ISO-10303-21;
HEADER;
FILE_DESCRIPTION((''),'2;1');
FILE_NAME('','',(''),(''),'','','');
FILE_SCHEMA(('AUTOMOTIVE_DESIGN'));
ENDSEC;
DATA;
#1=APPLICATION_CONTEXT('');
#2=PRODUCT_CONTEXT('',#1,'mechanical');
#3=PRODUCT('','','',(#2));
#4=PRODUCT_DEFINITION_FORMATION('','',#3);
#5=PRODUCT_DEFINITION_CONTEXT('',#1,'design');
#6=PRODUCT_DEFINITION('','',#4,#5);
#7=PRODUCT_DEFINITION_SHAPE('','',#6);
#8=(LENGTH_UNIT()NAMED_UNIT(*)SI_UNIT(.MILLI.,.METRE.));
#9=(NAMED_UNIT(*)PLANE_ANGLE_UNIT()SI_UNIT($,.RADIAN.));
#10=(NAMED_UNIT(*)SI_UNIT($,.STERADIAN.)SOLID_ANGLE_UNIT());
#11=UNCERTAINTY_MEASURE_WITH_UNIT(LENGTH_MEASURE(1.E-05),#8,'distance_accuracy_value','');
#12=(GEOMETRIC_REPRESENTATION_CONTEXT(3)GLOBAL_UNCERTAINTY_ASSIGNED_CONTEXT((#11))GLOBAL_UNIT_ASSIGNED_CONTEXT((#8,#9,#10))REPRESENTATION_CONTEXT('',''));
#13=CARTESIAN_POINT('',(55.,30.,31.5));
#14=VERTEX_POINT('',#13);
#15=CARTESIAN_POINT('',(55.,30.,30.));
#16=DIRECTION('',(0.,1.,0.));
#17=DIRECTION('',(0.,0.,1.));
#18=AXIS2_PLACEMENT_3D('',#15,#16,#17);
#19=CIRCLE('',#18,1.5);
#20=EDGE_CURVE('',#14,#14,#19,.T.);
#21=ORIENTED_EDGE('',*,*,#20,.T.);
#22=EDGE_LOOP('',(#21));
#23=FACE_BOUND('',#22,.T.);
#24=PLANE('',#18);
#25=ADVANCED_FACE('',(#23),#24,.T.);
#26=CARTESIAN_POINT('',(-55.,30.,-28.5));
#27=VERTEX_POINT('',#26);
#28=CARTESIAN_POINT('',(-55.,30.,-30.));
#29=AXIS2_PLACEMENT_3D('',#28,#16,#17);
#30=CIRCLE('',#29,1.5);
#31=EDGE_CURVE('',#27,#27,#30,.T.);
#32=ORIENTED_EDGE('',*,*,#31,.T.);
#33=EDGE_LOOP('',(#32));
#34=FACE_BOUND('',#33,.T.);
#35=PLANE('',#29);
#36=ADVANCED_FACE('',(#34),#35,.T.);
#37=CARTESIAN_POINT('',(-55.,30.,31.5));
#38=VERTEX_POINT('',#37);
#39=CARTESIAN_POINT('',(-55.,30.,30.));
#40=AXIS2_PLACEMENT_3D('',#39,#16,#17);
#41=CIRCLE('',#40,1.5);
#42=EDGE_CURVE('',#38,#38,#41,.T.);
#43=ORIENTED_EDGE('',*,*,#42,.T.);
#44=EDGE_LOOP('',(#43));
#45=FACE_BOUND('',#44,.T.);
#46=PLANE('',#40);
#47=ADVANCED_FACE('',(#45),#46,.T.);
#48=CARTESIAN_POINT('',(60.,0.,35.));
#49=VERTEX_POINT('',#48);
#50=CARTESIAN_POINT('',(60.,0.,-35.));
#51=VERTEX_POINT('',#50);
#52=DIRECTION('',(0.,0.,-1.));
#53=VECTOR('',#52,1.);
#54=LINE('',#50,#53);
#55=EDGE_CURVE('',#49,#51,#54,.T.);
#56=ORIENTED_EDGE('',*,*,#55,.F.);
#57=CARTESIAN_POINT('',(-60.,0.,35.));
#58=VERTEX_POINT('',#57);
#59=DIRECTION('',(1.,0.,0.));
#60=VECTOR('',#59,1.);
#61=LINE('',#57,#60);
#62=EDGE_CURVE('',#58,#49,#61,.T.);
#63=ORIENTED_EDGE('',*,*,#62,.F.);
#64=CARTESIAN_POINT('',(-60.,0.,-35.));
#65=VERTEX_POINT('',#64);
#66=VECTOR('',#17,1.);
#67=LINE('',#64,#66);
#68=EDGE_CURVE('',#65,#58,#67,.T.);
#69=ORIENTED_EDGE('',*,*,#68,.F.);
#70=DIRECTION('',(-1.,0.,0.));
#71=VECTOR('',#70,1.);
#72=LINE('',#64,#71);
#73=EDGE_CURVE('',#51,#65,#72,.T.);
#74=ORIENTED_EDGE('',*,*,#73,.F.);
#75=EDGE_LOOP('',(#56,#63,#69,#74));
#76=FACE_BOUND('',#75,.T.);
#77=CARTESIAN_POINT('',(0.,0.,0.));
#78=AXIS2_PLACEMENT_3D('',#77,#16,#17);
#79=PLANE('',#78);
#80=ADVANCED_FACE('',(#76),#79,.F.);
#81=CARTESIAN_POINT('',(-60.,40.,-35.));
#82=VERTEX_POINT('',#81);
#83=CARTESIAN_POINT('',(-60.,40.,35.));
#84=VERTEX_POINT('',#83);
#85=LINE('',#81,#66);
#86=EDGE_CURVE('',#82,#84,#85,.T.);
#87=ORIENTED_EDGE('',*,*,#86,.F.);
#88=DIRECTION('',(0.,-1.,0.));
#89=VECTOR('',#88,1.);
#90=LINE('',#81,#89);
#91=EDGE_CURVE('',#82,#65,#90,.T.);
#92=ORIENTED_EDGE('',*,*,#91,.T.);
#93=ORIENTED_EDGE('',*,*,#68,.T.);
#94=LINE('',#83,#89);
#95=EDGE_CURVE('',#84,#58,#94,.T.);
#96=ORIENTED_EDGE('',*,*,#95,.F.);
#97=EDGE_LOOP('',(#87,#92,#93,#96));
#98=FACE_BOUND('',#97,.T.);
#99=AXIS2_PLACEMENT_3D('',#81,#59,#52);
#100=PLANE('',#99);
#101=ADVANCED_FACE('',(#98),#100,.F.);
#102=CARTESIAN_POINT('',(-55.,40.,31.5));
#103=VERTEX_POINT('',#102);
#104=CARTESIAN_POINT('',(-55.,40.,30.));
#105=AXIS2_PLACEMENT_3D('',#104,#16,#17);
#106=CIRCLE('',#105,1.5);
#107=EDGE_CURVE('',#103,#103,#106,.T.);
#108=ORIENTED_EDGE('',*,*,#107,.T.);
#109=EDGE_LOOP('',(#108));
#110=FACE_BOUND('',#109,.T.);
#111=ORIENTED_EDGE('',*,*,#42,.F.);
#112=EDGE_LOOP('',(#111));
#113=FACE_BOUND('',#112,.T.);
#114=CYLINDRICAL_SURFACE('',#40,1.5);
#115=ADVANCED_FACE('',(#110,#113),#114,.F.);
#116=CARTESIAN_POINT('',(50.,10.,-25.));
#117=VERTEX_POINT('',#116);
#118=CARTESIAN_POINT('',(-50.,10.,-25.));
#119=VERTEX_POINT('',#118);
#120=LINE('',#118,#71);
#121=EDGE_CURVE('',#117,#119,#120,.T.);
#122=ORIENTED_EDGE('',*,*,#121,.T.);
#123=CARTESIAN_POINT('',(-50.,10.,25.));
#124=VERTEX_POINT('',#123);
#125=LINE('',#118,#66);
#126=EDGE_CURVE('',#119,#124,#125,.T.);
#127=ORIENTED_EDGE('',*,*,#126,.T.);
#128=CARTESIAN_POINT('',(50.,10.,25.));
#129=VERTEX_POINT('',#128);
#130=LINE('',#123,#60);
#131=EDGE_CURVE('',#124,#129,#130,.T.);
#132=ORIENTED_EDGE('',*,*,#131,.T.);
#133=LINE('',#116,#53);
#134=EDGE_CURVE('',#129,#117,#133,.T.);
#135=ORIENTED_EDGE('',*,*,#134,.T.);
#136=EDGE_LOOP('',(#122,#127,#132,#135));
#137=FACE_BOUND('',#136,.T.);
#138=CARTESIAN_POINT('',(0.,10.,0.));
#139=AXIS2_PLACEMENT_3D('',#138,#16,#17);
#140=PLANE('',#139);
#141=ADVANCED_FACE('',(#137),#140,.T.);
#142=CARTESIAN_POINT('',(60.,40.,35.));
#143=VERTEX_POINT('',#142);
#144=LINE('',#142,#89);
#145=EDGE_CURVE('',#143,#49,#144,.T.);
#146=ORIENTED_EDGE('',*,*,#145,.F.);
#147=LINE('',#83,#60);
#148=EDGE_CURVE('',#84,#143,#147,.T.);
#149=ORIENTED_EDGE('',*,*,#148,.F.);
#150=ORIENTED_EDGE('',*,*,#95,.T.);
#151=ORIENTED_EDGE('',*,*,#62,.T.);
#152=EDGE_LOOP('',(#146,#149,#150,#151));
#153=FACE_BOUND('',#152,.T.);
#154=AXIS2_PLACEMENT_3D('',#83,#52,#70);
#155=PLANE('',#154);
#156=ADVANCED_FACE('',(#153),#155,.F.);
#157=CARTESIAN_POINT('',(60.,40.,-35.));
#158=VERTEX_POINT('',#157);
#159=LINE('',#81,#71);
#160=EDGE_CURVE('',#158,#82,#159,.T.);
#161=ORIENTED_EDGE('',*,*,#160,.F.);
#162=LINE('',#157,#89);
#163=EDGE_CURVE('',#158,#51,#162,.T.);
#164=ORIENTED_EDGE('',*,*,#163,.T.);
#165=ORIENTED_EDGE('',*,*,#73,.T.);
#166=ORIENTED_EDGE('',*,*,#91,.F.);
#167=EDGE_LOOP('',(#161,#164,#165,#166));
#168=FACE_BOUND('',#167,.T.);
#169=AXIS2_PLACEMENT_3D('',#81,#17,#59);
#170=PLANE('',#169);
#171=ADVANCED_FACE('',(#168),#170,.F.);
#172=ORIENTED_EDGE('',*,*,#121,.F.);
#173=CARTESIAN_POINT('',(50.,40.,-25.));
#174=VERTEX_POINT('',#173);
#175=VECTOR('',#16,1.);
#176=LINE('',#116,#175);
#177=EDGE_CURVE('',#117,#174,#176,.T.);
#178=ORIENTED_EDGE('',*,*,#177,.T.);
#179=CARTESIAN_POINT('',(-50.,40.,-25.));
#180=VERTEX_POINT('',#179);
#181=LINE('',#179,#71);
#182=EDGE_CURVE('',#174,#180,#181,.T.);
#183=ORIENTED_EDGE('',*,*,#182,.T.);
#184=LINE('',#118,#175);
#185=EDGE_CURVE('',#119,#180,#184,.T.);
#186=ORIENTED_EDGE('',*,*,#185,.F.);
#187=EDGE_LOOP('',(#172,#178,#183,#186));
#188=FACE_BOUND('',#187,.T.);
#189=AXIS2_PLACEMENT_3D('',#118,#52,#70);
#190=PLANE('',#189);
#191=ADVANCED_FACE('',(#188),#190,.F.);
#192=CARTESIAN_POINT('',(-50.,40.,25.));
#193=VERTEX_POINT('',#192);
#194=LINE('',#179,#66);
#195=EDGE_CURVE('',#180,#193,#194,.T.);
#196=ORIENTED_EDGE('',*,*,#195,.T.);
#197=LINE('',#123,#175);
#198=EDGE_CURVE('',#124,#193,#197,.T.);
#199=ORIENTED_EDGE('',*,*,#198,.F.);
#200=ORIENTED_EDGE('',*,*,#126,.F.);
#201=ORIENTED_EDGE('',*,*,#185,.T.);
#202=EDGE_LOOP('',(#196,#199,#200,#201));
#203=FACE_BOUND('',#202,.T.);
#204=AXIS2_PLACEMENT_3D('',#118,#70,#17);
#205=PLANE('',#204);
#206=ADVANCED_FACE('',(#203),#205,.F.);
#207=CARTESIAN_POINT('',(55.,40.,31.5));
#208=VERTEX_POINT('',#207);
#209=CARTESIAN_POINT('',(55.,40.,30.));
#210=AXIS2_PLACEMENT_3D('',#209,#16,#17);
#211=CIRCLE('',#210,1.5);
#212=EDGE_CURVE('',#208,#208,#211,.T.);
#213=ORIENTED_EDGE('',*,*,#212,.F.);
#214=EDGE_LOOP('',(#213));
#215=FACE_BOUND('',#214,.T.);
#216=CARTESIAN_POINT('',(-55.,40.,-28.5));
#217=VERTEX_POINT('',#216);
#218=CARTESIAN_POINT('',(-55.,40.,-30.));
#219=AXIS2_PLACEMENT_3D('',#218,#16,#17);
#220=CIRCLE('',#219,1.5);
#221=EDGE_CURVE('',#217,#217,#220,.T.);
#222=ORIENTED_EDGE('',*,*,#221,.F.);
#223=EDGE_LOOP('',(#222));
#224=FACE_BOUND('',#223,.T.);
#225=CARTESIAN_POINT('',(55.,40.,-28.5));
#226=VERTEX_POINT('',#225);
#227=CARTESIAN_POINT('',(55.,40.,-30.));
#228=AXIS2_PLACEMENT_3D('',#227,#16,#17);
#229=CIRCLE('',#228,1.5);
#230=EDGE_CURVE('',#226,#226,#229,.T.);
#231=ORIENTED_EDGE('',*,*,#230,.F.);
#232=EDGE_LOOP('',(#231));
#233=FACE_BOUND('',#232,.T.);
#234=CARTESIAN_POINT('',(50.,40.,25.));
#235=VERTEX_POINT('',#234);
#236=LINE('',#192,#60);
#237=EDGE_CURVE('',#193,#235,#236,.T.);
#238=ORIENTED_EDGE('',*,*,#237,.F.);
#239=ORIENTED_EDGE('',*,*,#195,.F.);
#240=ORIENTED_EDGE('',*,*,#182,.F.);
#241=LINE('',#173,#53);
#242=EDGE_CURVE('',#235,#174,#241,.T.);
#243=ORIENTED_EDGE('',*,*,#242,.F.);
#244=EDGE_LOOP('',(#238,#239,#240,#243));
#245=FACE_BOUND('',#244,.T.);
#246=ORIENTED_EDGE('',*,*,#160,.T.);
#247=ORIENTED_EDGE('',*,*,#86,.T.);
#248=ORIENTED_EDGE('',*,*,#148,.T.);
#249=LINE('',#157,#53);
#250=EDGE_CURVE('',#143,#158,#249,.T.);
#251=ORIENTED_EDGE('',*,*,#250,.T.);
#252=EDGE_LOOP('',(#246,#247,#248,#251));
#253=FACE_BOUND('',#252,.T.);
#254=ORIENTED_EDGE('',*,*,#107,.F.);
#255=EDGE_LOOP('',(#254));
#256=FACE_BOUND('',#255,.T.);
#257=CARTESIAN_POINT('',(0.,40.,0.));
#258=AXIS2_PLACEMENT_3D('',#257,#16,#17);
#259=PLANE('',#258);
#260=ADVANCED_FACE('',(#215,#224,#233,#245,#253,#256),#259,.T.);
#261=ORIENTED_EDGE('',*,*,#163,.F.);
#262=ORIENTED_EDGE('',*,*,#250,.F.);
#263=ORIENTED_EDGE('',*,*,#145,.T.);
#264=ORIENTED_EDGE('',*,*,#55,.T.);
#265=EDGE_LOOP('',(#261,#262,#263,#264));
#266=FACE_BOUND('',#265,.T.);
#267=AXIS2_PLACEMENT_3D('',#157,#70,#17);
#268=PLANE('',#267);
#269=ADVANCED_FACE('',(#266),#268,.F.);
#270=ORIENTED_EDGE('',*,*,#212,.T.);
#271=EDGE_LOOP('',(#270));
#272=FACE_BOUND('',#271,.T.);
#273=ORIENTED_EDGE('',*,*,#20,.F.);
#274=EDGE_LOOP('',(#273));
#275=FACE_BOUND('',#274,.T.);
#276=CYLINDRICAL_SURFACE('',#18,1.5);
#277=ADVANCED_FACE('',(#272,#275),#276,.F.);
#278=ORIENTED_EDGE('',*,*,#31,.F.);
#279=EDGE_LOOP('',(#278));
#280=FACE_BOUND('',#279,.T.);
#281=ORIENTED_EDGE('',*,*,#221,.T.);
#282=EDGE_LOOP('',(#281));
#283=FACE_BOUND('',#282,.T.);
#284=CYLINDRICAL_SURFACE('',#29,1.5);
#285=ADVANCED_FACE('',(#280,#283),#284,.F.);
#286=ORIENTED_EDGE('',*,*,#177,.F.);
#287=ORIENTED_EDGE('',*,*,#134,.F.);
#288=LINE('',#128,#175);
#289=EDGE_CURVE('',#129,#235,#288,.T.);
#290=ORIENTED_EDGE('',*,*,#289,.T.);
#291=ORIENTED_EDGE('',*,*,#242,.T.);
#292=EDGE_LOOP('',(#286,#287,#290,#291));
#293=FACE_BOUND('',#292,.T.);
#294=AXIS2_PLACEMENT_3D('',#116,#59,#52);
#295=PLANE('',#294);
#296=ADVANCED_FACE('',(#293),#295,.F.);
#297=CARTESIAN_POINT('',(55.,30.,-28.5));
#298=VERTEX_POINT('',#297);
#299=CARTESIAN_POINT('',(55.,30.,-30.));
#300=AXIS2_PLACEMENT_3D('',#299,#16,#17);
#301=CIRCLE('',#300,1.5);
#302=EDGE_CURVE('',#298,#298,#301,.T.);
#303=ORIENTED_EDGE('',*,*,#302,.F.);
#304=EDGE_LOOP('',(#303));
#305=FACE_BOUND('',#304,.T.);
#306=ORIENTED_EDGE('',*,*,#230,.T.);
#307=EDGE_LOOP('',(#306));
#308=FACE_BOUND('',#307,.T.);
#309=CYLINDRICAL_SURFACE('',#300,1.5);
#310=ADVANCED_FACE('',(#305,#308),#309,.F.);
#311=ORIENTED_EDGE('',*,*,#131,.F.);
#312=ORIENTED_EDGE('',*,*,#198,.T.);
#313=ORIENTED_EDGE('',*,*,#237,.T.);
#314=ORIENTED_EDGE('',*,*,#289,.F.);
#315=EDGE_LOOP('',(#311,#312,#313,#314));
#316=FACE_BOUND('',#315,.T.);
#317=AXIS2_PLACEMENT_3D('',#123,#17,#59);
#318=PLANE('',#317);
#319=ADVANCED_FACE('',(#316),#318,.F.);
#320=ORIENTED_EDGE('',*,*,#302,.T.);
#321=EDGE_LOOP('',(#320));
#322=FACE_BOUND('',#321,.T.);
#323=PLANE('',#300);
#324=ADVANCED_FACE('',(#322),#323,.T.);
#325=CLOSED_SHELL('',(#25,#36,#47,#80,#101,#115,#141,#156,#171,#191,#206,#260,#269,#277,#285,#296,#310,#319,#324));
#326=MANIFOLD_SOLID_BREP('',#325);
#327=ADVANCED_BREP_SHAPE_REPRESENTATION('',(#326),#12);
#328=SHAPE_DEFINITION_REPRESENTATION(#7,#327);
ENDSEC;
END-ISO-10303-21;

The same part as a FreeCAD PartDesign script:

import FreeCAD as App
import Part
import Sketcher
from FreeCAD import Vector
Q = App.Units.Quantity

doc = App.newDocument("Part")
body = doc.addObject("PartDesign::Body", "Body")

# Sketch on XZ plane
sketch1 = body.newObject("Sketcher::SketchObject", "Sketch")
sketch1.AttachmentSupport = (doc.getObject("XZ_Plane"), [""])
sketch1.MapMode = "FlatFace"
sketch1.addGeometry([
    Part.LineSegment(Vector(-60, -35, 0), Vector(-60, 35, 0)),
    Part.LineSegment(Vector(-60, 35, 0), Vector(60, 35, 0)),
    Part.LineSegment(Vector(60, 35, 0), Vector(60, -35, 0)),
    Part.LineSegment(Vector(60, -35, 0), Vector(-60, -35, 0)),
], False)
sketch1.addConstraint([
    Sketcher.Constraint("Coincident", 0, 2, 1, 1),
    Sketcher.Constraint("Coincident", 1, 2, 2, 1),
    Sketcher.Constraint("Coincident", 2, 2, 3, 1),
    Sketcher.Constraint("Coincident", 3, 2, 0, 1),
    Sketcher.Constraint("Vertical", 0),
    Sketcher.Constraint("Horizontal", 1),
    Sketcher.Constraint("Vertical", 2),
    Sketcher.Constraint("Horizontal", 3),
    Sketcher.Constraint("Symmetric", 0, 2, 2, 2, -1, 1),
    Sketcher.Constraint("DistanceX", 1, 1, 1, 2, Q("120 mm")),
    Sketcher.Constraint("DistanceY", 0, 1, 0, 2, Q("70 mm")),
])
pad1 = body.newObject("PartDesign::Pad", "Pad")
pad1.Profile = sketch1
pad1.Length = 40
pad1.Reversed = True

# Sketch on XZ plane
sketch2 = body.newObject("Sketcher::SketchObject", "Sketch001")
sketch2.AttachmentSupport = (doc.getObject("XZ_Plane"), [""])
sketch2.MapMode = "FlatFace"
sketch2.AttachmentOffset = App.Placement(Vector(0, 0, -40), App.Rotation())
sketch2.addGeometry([
    Part.LineSegment(Vector(-50, -25, 0), Vector(-50, 25, 0)),
    Part.LineSegment(Vector(-50, 25, 0), Vector(50, 25, 0)),
    Part.LineSegment(Vector(50, 25, 0), Vector(50, -25, 0)),
    Part.LineSegment(Vector(50, -25, 0), Vector(-50, -25, 0)),
], False)
sketch2.addConstraint([
    Sketcher.Constraint("Coincident", 0, 2, 1, 1),
    Sketcher.Constraint("Coincident", 1, 2, 2, 1),
    Sketcher.Constraint("Coincident", 2, 2, 3, 1),
    Sketcher.Constraint("Coincident", 3, 2, 0, 1),
    Sketcher.Constraint("Vertical", 0),
    Sketcher.Constraint("Horizontal", 1),
    Sketcher.Constraint("Vertical", 2),
    Sketcher.Constraint("Horizontal", 3),
    Sketcher.Constraint("Symmetric", 0, 2, 2, 2, -1, 1),
    Sketcher.Constraint("DistanceX", 1, 1, 1, 2, Q("100 mm")),
    Sketcher.Constraint("DistanceY", 0, 1, 0, 2, Q("50 mm")),
])
pocket1 = body.newObject("PartDesign::Pocket", "Pocket")
pocket1.Profile = sketch2
pocket1.Length = 30
pocket1.Reversed = True

# Sketch on XZ plane
sketch3 = body.newObject("Sketcher::SketchObject", "Sketch002")
sketch3.AttachmentSupport = (doc.getObject("XZ_Plane"), [""])
sketch3.MapMode = "FlatFace"
sketch3.AttachmentOffset = App.Placement(Vector(0, 0, -40), App.Rotation())
sketch3.addGeometry([
    Part.Circle(Vector(-55, 30, 0), Vector(0, 0, 1), 1.5),
    Part.Circle(Vector(-55, -30, 0), Vector(0, 0, 1), 1.5),
    Part.Circle(Vector(55, -30, 0), Vector(0, 0, 1), 1.5),
    Part.Circle(Vector(55, 30, 0), Vector(0, 0, 1), 1.5),
], False)
sketch3.addConstraint([
    Sketcher.Constraint("Equal", 0, 1),
    Sketcher.Constraint("Equal", 1, 2),
    Sketcher.Constraint("Equal", 2, 3),
    Sketcher.Constraint("Symmetric", 0, 3, 2, 3, -1, 1),
    Sketcher.Constraint("Symmetric", 1, 3, 3, 3, -1, 1),
    Sketcher.Constraint("Symmetric", 1, 3, 2, 3, -2),
    Sketcher.Constraint("Diameter", 0, Q("3 mm")),
    Sketcher.Constraint("DistanceX", 0, 3, -1, 1, Q("55 mm")),
    Sketcher.Constraint("DistanceY", -1, 1, 0, 3, Q("30 mm")),
])
pocket2 = body.newObject("PartDesign::Pocket", "Pocket001")
pocket2.Profile = sketch3
pocket2.Length = 10
pocket2.Reversed = True

doc.recompute()
